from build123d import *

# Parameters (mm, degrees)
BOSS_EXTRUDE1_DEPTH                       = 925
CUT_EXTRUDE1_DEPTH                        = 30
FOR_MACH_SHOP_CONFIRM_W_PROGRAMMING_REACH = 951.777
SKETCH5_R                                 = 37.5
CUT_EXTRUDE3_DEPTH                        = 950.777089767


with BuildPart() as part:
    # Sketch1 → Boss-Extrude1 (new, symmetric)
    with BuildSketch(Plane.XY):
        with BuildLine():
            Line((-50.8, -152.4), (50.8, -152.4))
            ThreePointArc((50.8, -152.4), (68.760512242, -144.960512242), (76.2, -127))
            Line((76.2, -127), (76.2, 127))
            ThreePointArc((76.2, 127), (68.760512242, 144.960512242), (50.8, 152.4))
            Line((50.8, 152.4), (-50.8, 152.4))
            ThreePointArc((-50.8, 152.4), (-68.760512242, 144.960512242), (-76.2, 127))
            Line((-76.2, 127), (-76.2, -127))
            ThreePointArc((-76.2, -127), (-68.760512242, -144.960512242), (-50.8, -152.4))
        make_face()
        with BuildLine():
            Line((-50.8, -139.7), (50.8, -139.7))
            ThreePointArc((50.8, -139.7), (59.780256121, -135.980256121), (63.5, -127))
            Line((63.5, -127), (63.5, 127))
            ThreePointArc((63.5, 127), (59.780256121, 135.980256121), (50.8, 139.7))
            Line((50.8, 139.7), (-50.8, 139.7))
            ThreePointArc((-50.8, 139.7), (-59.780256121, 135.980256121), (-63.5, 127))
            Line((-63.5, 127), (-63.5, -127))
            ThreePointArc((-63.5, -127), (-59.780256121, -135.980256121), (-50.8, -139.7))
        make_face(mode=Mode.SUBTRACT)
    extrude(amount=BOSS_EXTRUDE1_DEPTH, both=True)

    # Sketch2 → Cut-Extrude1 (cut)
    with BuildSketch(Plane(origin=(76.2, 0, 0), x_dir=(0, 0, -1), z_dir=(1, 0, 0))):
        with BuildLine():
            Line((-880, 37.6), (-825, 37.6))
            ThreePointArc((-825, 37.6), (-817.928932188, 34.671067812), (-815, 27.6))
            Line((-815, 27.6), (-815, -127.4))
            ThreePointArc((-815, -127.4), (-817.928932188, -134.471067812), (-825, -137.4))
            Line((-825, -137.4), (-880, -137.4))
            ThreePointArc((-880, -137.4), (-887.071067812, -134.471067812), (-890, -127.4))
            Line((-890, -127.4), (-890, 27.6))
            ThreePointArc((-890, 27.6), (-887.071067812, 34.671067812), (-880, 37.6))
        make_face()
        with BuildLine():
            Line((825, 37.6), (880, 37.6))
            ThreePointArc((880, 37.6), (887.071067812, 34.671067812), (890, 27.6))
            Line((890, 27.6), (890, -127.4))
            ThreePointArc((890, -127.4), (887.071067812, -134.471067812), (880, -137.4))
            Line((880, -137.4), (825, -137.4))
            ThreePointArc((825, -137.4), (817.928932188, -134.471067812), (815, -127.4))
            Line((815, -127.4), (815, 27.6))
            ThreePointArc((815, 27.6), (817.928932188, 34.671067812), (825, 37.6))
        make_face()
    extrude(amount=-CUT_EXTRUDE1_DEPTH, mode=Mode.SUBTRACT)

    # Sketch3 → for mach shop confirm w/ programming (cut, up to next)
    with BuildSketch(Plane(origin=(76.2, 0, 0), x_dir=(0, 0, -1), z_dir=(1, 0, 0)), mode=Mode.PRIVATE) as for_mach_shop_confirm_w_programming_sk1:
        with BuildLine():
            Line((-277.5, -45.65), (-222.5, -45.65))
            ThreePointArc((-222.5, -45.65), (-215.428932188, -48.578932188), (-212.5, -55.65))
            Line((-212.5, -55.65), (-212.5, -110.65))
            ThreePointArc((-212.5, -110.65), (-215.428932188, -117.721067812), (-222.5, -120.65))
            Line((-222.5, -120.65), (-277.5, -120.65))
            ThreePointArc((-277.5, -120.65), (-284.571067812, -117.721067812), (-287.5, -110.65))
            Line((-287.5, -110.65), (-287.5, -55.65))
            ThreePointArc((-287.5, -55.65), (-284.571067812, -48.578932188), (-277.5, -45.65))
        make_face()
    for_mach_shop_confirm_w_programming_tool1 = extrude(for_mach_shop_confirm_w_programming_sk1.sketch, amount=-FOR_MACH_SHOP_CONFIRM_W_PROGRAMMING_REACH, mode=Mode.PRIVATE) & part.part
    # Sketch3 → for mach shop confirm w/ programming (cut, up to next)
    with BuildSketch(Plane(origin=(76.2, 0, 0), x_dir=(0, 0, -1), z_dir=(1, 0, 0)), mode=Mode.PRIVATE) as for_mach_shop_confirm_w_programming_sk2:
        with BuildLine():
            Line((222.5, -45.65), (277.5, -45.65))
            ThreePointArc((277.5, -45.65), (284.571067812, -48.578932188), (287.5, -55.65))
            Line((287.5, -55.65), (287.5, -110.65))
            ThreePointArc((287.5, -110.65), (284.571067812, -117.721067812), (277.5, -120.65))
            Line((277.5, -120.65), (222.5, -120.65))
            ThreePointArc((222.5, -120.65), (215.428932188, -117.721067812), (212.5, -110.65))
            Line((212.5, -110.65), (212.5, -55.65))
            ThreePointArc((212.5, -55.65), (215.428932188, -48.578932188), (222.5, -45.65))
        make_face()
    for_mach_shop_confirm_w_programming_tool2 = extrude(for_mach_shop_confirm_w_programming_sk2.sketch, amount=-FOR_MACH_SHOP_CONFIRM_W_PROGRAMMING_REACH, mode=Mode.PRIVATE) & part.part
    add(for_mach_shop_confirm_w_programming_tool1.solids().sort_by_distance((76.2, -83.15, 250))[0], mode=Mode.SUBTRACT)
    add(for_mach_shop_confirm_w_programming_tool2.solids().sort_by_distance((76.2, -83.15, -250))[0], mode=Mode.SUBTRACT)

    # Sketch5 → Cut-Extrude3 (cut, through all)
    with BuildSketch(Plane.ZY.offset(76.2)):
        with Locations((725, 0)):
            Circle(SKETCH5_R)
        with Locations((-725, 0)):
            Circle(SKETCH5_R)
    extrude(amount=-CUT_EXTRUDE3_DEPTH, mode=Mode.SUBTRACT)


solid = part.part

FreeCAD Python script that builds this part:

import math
import FreeCAD as App
import Part
import Sketcher

doc = App.newDocument("Part")
body = doc.addObject("PartDesign::Body", "Body")

# Sketch on XY plane
sketch1 = body.newObject("Sketcher::SketchObject", "Sketch")
sketch1.AttachmentSupport = (doc.getObject("XY_Plane"), [""])
sketch1.MapMode = "FlatFace"
sketch1.addGeometry([
    Part.LineSegment(App.Vector(-51, -152, 0), App.Vector(51, -152, 0)),  # 0
    Part.ArcOfCircle(Part.Circle(App.Vector(51, -127, 0), App.Vector(0, 0, 1), 25), math.radians(-90), math.radians(0)),  # 1
    Part.LineSegment(App.Vector(76, -127, 0), App.Vector(76, 127, 0)),  # 2
    Part.ArcOfCircle(Part.Circle(App.Vector(51, 127, 0), App.Vector(0, 0, 1), 25), math.radians(0), math.radians(90)),  # 3
    Part.LineSegment(App.Vector(51, 152, 0), App.Vector(-51, 152, 0)),  # 4
    Part.ArcOfCircle(Part.Circle(App.Vector(-51, 127, 0), App.Vector(0, 0, 1), 25), math.radians(90), math.radians(180)),  # 5
    Part.LineSegment(App.Vector(-76, 127, 0), App.Vector(-76, -127, 0)),  # 6
    Part.ArcOfCircle(Part.Circle(App.Vector(-51, -127, 0), App.Vector(0, 0, 1), 25), math.radians(180), math.radians(270)),  # 7
    Part.LineSegment(App.Vector(51, -140, 0), App.Vector(-51, -140, 0)),  # 8
    Part.ArcOfCircle(Part.Circle(App.Vector(-51, -127, 0), App.Vector(0, 0, 1), 13), math.radians(180), math.radians(270)),  # 9
    Part.LineSegment(App.Vector(-64, -127, 0), App.Vector(-64, 127, 0)),  # 10
    Part.ArcOfCircle(Part.Circle(App.Vector(-51, 127, 0), App.Vector(0, 0, 1), 13), math.radians(90), math.radians(180)),  # 11
    Part.LineSegment(App.Vector(-51, 140, 0), App.Vector(51, 140, 0)),  # 12
    Part.ArcOfCircle(Part.Circle(App.Vector(51, 127, 0), App.Vector(0, 0, 1), 13), math.radians(0), math.radians(90)),  # 13
    Part.LineSegment(App.Vector(64, 127, 0), App.Vector(64, -127, 0)),  # 14
    Part.ArcOfCircle(Part.Circle(App.Vector(51, -127, 0), App.Vector(0, 0, 1), 13), math.radians(-90), math.radians(0)),  # 15
], False)
sketch1.addConstraint([
    Sketcher.Constraint("Tangent", 0, 2, 1, 1),
    Sketcher.Constraint("Tangent", 1, 2, 2, 1),
    Sketcher.Constraint("Tangent", 2, 2, 3, 1),
    Sketcher.Constraint("Tangent", 3, 2, 4, 1),
    Sketcher.Constraint("Tangent", 4, 2, 5, 1),
    Sketcher.Constraint("Tangent", 5, 2, 6, 1),
    Sketcher.Constraint("Tangent", 6, 2, 7, 1),
    Sketcher.Constraint("Tangent", 7, 2, 0, 1),
    Sketcher.Constraint("Tangent", 8, 2, 9, 2),
    Sketcher.Constraint("Tangent", 9, 1, 10, 1),
    Sketcher.Constraint("Tangent", 10, 2, 11, 2),
    Sketcher.Constraint("Tangent", 11, 1, 12, 1),
    Sketcher.Constraint("Tangent", 12, 2, 13, 2),
    Sketcher.Constraint("Tangent", 13, 1, 14, 1),
    Sketcher.Constraint("Tangent", 14, 2, 15, 2),
    Sketcher.Constraint("Tangent", 15, 1, 8, 1),
    Sketcher.Constraint("Horizontal", 0),
    Sketcher.Constraint("Vertical", 2),
    Sketcher.Constraint("Horizontal", 4),
    Sketcher.Constraint("Vertical", 6),
    Sketcher.Constraint("Horizontal", 8),
    Sketcher.Constraint("Vertical", 10),
    Sketcher.Constraint("Horizontal", 12),
    Sketcher.Constraint("Vertical", 14),
    Sketcher.Constraint("Coincident", 9, 3, 7, 3),
    Sketcher.Constraint("Coincident", 11, 3, 5, 3),
    Sketcher.Constraint("Coincident", 13, 3, 3, 3),
    Sketcher.Constraint("Equal", 1, 3),
    Sketcher.Constraint("Equal", 3, 5),
    Sketcher.Constraint("Equal", 5, 7),
    Sketcher.Constraint("Equal", 13, 15),
    Sketcher.Constraint("Symmetric", 1, 3, 5, 3, -1, 1),
    Sketcher.Constraint("Radius", 1, 25.4),
    Sketcher.Constraint("Radius", 9, 12.7),
    Sketcher.Constraint("DistanceY", 2, 1, 2, 2, 254.0),
    Sketcher.Constraint("DistanceX", 0, 1, 0, 2, 101.6),
])
pad1 = body.newObject("PartDesign::Pad", "Pad")
pad1.Profile = sketch1
pad1.Length = 1850
pad1.Midplane = True

# Sketch on YZ plane
sketch2 = body.newObject("Sketcher::SketchObject", "Sketch001")
sketch2.AttachmentSupport = (doc.getObject("YZ_Plane"), [""])
sketch2.MapMode = "FlatFace"
sketch2.AttachmentOffset = App.Placement(App.Vector(0, 0, 76.2), App.Rotation())
sketch2.addGeometry([
    Part.LineSegment(App.Vector(38, 825, 0), App.Vector(38, 880, 0)),  # 0
    Part.ArcOfCircle(Part.Circle(App.Vector(28, 880, 0), App.Vector(0, 0, 1), 10), math.radians(0), math.radians(90)),  # 1
    Part.LineSegment(App.Vector(28, 890, 0), App.Vector(-127, 890, 0)),  # 2
    Part.ArcOfCircle(Part.Circle(App.Vector(-127, 880, 0), App.Vector(0, 0, 1), 10), math.radians(90), math.radians(180)),  # 3
    Part.LineSegment(App.Vector(-137, 880, 0), App.Vector(-137, 825, 0)),  # 4
    Part.ArcOfCircle(Part.Circle(App.Vector(-127, 825, 0), App.Vector(0, 0, 1), 10), math.radians(180), math.radians(270)),  # 5
    Part.LineSegment(App.Vector(-127, 815, 0), App.Vector(28, 815, 0)),  # 6
    Part.ArcOfCircle(Part.Circle(App.Vector(28, 825, 0), App.Vector(0, 0, 1), 10), math.radians(-90), math.radians(0)),  # 7
    Part.LineSegment(App.Vector(38, -880, 0), App.Vector(38, -825, 0)),  # 8
    Part.ArcOfCircle(Part.Circle(App.Vector(28, -825, 0), App.Vector(0, 0, 1), 10), math.radians(0), math.radians(90)),  # 9
    Part.LineSegment(App.Vector(28, -815, 0), App.Vector(-127, -815, 0)),  # 10
    Part.ArcOfCircle(Part.Circle(App.Vector(-127, -825, 0), App.Vector(0, 0, 1), 10), math.radians(90), math.radians(180)),  # 11
    Part.LineSegment(App.Vector(-137, -825, 0), App.Vector(-137, -880, 0)),  # 12
    Part.ArcOfCircle(Part.Circle(App.Vector(-127, -880, 0), App.Vector(0, 0, 1), 10), math.radians(180), math.radians(270)),  # 13
    Part.LineSegment(App.Vector(-127, -890, 0), App.Vector(28, -890, 0)),  # 14
    Part.ArcOfCircle(Part.Circle(App.Vector(28, -880, 0), App.Vector(0, 0, 1), 10), math.radians(-90), math.radians(0)),  # 15
], False)
sketch2.addConstraint([
    Sketcher.Constraint("Tangent", 0, 2, 1, 1),
    Sketcher.Constraint("Tangent", 1, 2, 2, 1),
    Sketcher.Constraint("Tangent", 2, 2, 3, 1),
    Sketcher.Constraint("Tangent", 3, 2, 4, 1),
    Sketcher.Constraint("Tangent", 4, 2, 5, 1),
    Sketcher.Constraint("Tangent", 5, 2, 6, 1),
    Sketcher.Constraint("Tangent", 6, 2, 7, 1),
    Sketcher.Constraint("Tangent", 7, 2, 0, 1),
    Sketcher.Constraint("Tangent", 8, 2, 9, 1),
    Sketcher.Constraint("Tangent", 9, 2, 10, 1),
    Sketcher.Constraint("Tangent", 10, 2, 11, 1),
    Sketcher.Constraint("Tangent", 11, 2, 12, 1),
    Sketcher.Constraint("Tangent", 12, 2, 13, 1),
    Sketcher.Constraint("Tangent", 13, 2, 14, 1),
    Sketcher.Constraint("Tangent", 14, 2, 15, 1),
    Sketcher.Constraint("Tangent", 15, 2, 8, 1),
    Sketcher.Constraint("Vertical", 0),
    Sketcher.Constraint("Horizontal", 2),
    Sketcher.Constraint("Vertical", 4),
    Sketcher.Constraint("Horizontal", 6),
    Sketcher.Constraint("Vertical", 8),
    Sketcher.Constraint("Horizontal", 10),
    Sketcher.Constraint("Vertical", 12),
    Sketcher.Constraint("Horizontal", 14),
    Sketcher.Constraint("Equal", 1, 3),
    Sketcher.Constraint("Equal", 3, 5),
    Sketcher.Constraint("Equal", 5, 7),
    Sketcher.Constraint("Equal", 7, 9),
    Sketcher.Constraint("Equal", 9, 11),
    Sketcher.Constraint("Equal", 11, 13),
    Sketcher.Constraint("Equal", 13, 15),
    Sketcher.Constraint("Symmetric", 7, 3, 9, 3, -1),
    Sketcher.Constraint("Symmetric", 3, 3, 13, 3, -1),
    Sketcher.Constraint("Radius", 1, 10.0),
    Sketcher.Constraint("DistanceX", 2, 2, 2, 1, 155.0),
    Sketcher.Constraint("DistanceY", 0, 1, 0, 2, 55.0),
    Sketcher.Constraint("DistanceY", -1, 1, 1, 3, 880.0),
    Sketcher.Constraint("DistanceX", -1, 1, 1, 3, 27.6),
])
pocket1 = body.newObject("PartDesign::Pocket", "Pocket")
pocket1.Profile = sketch2
pocket1.Length = 30

# Sketch on YZ plane
sketch3 = body.newObject("Sketcher::SketchObject", "Sketch002")
sketch3.AttachmentSupport = (doc.getObject("YZ_Plane"), [""])
sketch3.MapMode = "FlatFace"
sketch3.AttachmentOffset = App.Placement(App.Vector(0, 0, 76.2), App.Rotation())
sketch3.addGeometry([
    Part.LineSegment(App.Vector(-46, 222, 0), App.Vector(-46, 278, 0)),  # 0
    Part.ArcOfCircle(Part.Circle(App.Vector(-56, 278, 0), App.Vector(0, 0, 1), 10), math.radians(0), math.radians(90)),  # 1
    Part.LineSegment(App.Vector(-56, 288, 0), App.Vector(-111, 288, 0)),  # 2
    Part.ArcOfCircle(Part.Circle(App.Vector(-111, 278, 0), App.Vector(0, 0, 1), 10), math.radians(90), math.radians(180)),  # 3
    Part.LineSegment(App.Vector(-121, 278, 0), App.Vector(-121, 222, 0)),  # 4
    Part.ArcOfCircle(Part.Circle(App.Vector(-111, 222, 0), App.Vector(0, 0, 1), 10), math.radians(180), math.radians(270)),  # 5
    Part.LineSegment(App.Vector(-111, 212, 0), App.Vector(-56, 212, 0)),  # 6
    Part.ArcOfCircle(Part.Circle(App.Vector(-56, 222, 0), App.Vector(0, 0, 1), 10), math.radians(-90), math.radians(0)),  # 7
], False)
sketch3.addConstraint([
    Sketcher.Constraint("Tangent", 0, 2, 1, 1),
    Sketcher.Constraint("Tangent", 1, 2, 2, 1),
    Sketcher.Constraint("Tangent", 2, 2, 3, 1),
    Sketcher.Constraint("Tangent", 3, 2, 4, 1),
    Sketcher.Constraint("Tangent", 4, 2, 5, 1),
    Sketcher.Constraint("Tangent", 5, 2, 6, 1),
    Sketcher.Constraint("Tangent", 6, 2, 7, 1),
    Sketcher.Constraint("Tangent", 7, 2, 0, 1),
    Sketcher.Constraint("Vertical", 0),
    Sketcher.Constraint("Horizontal", 2),
    Sketcher.Constraint("Vertical", 4),
    Sketcher.Constraint("Horizontal", 6),
    Sketcher.Constraint("Equal", 1, 3),
    Sketcher.Constraint("Equal", 3, 5),
    Sketcher.Constraint("Equal", 5, 7),
    Sketcher.Constraint("Equal", 6, 0),
    Sketcher.Constraint("Radius", 1, 10.0),
    Sketcher.Constraint("DistanceX", 2, 2, 2, 1, 55.0),
    Sketcher.Constraint("DistanceY", -1, 1, 1, 3, 277.5),
    Sketcher.Constraint("DistanceX", 1, 3, -1, 1, 55.65),
])
pocket2 = body.newObject("PartDesign::Pocket", "Pocket001")
pocket2.Profile = sketch3
pocket2.Type = "UpToFirst"

# Sketch on YZ plane
sketch4 = body.newObject("Sketcher::SketchObject", "Sketch003")
sketch4.AttachmentSupport = (doc.getObject("YZ_Plane"), [""])
sketch4.MapMode = "FlatFace"
sketch4.AttachmentOffset = App.Placement(App.Vector(0, 0, 76.2), App.Rotation())
sketch4.addGeometry([
    Part.LineSegment(App.Vector(-46, -278, 0), App.Vector(-46, -222, 0)),  # 0
    Part.ArcOfCircle(Part.Circle(App.Vector(-56, -222, 0), App.Vector(0, 0, 1), 10), math.radians(0), math.radians(90)),  # 1
    Part.LineSegment(App.Vector(-56, -212, 0), App.Vector(-111, -212, 0)),  # 2
    Part.ArcOfCircle(Part.Circle(App.Vector(-111, -222, 0), App.Vector(0, 0, 1), 10), math.radians(90), math.radians(180)),  # 3
    Part.LineSegment(App.Vector(-121, -222, 0), App.Vector(-121, -278, 0)),  # 4
    Part.ArcOfCircle(Part.Circle(App.Vector(-111, -278, 0), App.Vector(0, 0, 1), 10), math.radians(180), math.radians(270)),  # 5
    Part.LineSegment(App.Vector(-111, -288, 0), App.Vector(-56, -288, 0)),  # 6
    Part.ArcOfCircle(Part.Circle(App.Vector(-56, -278, 0), App.Vector(0, 0, 1), 10), math.radians(-90), math.radians(0)),  # 7
], False)
sketch4.addConstraint([
    Sketcher.Constraint("Tangent", 0, 2, 1, 1),
    Sketcher.Constraint("Tangent", 1, 2, 2, 1),
    Sketcher.Constraint("Tangent", 2, 2, 3, 1),
    Sketcher.Constraint("Tangent", 3, 2, 4, 1),
    Sketcher.Constraint("Tangent", 4, 2, 5, 1),
    Sketcher.Constraint("Tangent", 5, 2, 6, 1),
    Sketcher.Constraint("Tangent", 6, 2, 7, 1),
    Sketcher.Constraint("Tangent", 7, 2, 0, 1),
    Sketcher.Constraint("Vertical", 0),
    Sketcher.Constraint("Horizontal", 2),
    Sketcher.Constraint("Vertical", 4),
    Sketcher.Constraint("Horizontal", 6),
    Sketcher.Constraint("Equal", 1, 3),
    Sketcher.Constraint("Equal", 3, 5),
    Sketcher.Constraint("Equal", 5, 7),
    Sketcher.Constraint("Equal", 6, 0),
    Sketcher.Constraint("Radius", 1, 10.0),
    Sketcher.Constraint("DistanceX", 2, 2, 2, 1, 55.0),
    Sketcher.Constraint("DistanceY", 1, 3, -1, 1, 222.5),
    Sketcher.Constraint("DistanceX", 1, 3, -1, 1, 55.65),
])
pocket3 = body.newObject("PartDesign::Pocket", "Pocket002")
pocket3.Profile = sketch4
pocket3.Type = "UpToFirst"

# Sketch on YZ plane
sketch5 = body.newObject("Sketcher::SketchObject", "Sketch004")
sketch5.AttachmentSupport = (doc.getObject("YZ_Plane"), [""])
sketch5.MapMode = "FlatFace"
sketch5.AttachmentOffset = App.Placement(App.Vector(0, 0, -76.2), App.Rotation())
sketch5.addGeometry([
    Part.Circle(App.Vector(0, 725, 0), App.Vector(0, 0, 1), 38),
    Part.Circle(App.Vector(0, -725, 0), App.Vector(0, 0, 1), 38),
], False)
sketch5.addConstraint([
    Sketcher.Constraint("Equal", 0, 1),
    Sketcher.Constraint("Symmetric", 0, 3, 1, 3, -1, 1),
    Sketcher.Constraint("PointOnObject", 0, 3, -2),
    Sketcher.Constraint("Diameter", 0, 75.0),
    Sketcher.Constraint("DistanceY", -1, 1, 0, 3, 725.0),
])
pocket4 = body.newObject("PartDesign::Pocket", "Pocket003")
pocket4.Profile = sketch5
pocket4.Type = "ThroughAll"
pocket4.Reversed = True

doc.recompute()
